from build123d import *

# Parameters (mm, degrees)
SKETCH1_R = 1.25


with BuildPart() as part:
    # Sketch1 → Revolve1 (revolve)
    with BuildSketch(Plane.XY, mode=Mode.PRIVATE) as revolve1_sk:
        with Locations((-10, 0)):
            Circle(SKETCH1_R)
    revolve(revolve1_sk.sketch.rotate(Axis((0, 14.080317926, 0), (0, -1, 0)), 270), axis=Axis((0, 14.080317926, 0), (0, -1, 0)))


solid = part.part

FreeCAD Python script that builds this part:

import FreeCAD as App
import Part
import Sketcher

doc = App.newDocument("Part")
body = doc.addObject("PartDesign::Body", "Body")

sketch1 = doc.addObject("Sketcher::SketchObject", "Sketch")
body.addObject(sketch1)
sketch1.AttachmentSupport = (doc.XY_Plane, [""])
sketch1.MapMode = "FlatFace"
sketch1.addGeometry(Part.Circle(App.Vector(-10, 0, 0), App.Vector(0, 0, 1), 1.25), False)
sketch1.addConstraint(Sketcher.Constraint("PointOnObject", 0, 3, -1))
sketch1.addConstraint(Sketcher.Constraint("Diameter", 0, 2.5))
sketch1.addConstraint(Sketcher.Constraint("DistanceX", 0, 3, -1, 1, 10.0))
revolution = doc.addObject("PartDesign::Revolution", "Revolution")
body.addObject(revolution)
revolution.Profile = sketch1
revolution.ReferenceAxis = (sketch1, ["V_Axis"])
revolution.Angle = 360

doc.recompute()
